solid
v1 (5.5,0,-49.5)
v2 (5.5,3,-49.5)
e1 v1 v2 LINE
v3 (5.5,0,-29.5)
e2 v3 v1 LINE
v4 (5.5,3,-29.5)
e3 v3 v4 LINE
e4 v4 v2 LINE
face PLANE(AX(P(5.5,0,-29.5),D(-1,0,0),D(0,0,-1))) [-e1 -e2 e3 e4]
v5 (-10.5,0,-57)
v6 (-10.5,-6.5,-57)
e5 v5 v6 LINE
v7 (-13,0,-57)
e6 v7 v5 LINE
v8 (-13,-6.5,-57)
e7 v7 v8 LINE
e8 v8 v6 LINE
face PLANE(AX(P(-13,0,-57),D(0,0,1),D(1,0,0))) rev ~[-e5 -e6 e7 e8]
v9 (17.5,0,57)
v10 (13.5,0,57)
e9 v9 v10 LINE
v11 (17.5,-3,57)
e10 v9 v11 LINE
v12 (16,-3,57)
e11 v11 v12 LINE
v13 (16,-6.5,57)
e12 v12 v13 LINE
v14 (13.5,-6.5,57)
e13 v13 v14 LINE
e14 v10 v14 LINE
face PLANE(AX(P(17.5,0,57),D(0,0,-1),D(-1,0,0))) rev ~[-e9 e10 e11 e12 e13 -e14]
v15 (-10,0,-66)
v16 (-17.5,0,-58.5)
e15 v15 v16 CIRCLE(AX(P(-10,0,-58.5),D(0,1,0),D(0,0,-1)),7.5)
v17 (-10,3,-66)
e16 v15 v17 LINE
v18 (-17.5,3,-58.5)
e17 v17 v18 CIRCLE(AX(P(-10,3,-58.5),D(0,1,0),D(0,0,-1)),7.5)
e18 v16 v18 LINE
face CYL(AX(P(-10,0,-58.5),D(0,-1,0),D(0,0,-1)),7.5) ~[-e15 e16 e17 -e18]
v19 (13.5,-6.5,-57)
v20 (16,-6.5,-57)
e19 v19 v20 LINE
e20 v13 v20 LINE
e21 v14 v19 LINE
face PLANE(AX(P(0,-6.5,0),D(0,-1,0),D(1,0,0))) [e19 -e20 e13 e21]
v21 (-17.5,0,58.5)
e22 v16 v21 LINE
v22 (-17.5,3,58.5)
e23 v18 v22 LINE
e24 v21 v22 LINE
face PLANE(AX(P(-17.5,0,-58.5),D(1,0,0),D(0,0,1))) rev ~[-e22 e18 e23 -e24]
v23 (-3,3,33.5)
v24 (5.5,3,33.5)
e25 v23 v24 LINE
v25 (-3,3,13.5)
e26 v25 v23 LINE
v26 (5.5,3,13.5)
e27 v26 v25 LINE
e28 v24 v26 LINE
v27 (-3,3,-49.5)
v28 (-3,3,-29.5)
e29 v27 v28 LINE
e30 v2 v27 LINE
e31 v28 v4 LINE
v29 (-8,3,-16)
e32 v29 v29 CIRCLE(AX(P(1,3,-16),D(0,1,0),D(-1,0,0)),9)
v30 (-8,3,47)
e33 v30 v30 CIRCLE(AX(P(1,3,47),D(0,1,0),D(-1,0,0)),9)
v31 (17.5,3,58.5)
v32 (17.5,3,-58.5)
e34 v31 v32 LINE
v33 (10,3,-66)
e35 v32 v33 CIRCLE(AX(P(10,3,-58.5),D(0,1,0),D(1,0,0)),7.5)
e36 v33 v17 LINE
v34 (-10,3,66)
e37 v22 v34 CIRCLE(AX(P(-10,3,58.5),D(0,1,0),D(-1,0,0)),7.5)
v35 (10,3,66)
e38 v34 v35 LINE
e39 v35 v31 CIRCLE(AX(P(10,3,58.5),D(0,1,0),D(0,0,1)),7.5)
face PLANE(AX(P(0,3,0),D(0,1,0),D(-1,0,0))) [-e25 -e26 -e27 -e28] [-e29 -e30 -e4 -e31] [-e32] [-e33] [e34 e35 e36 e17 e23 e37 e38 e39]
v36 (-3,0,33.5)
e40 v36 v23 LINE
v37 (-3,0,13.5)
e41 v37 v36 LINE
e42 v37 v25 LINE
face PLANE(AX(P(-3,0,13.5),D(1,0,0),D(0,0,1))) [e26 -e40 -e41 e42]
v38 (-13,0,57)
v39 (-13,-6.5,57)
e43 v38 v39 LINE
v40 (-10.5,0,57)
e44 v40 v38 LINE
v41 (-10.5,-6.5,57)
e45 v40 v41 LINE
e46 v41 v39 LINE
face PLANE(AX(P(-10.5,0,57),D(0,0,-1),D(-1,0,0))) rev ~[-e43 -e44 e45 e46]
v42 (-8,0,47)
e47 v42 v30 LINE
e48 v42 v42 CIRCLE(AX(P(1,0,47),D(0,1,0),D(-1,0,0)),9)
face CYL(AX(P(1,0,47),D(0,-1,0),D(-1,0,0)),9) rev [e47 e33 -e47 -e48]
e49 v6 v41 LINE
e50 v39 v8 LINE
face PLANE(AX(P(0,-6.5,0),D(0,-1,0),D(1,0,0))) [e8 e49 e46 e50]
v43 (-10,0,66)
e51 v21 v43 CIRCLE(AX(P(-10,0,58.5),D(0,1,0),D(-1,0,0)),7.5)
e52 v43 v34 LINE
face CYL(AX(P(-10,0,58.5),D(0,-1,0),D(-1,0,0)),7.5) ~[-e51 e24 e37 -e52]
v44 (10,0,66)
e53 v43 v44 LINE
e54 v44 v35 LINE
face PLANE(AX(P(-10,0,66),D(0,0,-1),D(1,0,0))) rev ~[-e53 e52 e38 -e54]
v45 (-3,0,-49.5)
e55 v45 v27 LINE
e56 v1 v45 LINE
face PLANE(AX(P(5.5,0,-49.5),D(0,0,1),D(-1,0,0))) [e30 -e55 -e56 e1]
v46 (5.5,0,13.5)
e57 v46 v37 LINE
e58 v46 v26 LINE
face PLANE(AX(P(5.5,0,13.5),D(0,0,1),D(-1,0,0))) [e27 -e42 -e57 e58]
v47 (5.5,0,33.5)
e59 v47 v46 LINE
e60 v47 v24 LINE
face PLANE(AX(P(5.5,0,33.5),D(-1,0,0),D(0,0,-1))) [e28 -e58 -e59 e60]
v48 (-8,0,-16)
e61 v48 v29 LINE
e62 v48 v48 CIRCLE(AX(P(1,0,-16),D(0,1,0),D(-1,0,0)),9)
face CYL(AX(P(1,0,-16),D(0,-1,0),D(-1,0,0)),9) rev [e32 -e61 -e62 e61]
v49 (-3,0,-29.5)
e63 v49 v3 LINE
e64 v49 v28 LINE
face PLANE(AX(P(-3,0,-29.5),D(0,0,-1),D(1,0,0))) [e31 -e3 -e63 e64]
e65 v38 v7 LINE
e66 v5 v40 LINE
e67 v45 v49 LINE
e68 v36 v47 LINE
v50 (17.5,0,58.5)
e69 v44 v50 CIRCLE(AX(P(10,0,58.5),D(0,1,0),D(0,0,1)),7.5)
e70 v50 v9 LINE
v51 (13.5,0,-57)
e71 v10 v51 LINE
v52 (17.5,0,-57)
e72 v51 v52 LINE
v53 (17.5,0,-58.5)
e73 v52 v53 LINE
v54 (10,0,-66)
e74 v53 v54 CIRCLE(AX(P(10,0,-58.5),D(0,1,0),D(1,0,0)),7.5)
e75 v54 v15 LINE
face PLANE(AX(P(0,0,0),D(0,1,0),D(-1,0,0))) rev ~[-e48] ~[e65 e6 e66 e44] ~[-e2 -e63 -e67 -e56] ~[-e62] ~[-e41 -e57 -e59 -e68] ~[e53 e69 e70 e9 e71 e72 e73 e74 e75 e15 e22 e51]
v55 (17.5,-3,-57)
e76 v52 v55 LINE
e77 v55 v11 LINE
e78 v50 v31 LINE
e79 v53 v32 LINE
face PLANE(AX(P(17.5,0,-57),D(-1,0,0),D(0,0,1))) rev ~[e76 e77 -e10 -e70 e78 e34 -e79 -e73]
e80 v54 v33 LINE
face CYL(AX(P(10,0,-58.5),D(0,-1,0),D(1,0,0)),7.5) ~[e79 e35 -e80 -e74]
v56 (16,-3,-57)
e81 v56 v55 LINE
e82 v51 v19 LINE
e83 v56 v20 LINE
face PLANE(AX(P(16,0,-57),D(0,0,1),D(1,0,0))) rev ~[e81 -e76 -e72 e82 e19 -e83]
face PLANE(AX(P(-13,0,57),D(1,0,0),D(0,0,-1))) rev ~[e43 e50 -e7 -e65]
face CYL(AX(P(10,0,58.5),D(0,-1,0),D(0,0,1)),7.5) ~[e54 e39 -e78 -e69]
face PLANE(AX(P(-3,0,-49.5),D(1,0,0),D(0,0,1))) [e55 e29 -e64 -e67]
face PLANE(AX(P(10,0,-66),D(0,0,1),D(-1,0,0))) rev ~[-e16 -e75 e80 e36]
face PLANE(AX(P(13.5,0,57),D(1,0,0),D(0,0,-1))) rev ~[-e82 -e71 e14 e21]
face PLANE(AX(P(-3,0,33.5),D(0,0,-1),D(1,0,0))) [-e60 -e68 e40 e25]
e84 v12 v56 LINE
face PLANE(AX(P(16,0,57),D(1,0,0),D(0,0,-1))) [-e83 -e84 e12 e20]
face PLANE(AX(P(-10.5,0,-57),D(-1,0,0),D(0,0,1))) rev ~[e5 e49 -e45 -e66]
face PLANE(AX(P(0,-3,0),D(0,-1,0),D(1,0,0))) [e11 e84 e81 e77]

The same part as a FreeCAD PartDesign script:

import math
import FreeCAD as App
import Part
import Sketcher
Q = App.Units.Quantity


def add_polygon(sketch, points):
    """Adds a closed chain of lines whose ends are joined by coincident constraints."""
    first, n = sketch.GeometryCount, len(points)
    for a, b in zip(points, points[1:] + points[:1]):
        sketch.addGeometry(Part.LineSegment(App.Vector(*a, 0), App.Vector(*b, 0)), False)
    for i in range(n):
        sketch.addConstraint(Sketcher.Constraint("Coincident", first + i, 2, first + (i + 1) % n, 1))

doc = App.newDocument("Part")
params = doc.addObject("Spreadsheet::Sheet", "Params")
for row, (alias, value) in enumerate([
    ("sketch1_diameter", "18 mm"),
    ("sketch1_radius", "7.5 mm"),
    ("sketch1_width", "20 mm"),
    ("sketch1_width2", "8.5 mm"),
    ("pad1_length", "3 mm"),
    ("sketch2_height", "114 mm"),
    ("sketch2_width", "2.5 mm"),
    ("pad2_length", "6.5 mm"),
    ("sketch3_height", "114 mm"),
    ("sketch3_width", "1.5 mm"),
    ("pad3_length", "3 mm"),
], start=1):
    params.set(f"A{row}", alias)
    params.set(f"B{row}", "=" + value)
    params.setAlias(f"B{row}", alias)

body = doc.addObject("PartDesign::Body", "Body")

sketch1 = doc.addObject("Sketcher::SketchObject", "Sketch")
body.addObject(sketch1)
sketch1.AttachmentSupport = (doc.XZ_Plane, [""])
sketch1.MapMode = "FlatFace"
sketch1.addGeometry(Part.ArcOfCircle(Part.Circle(App.Vector(-10, 58, 0), App.Vector(0, 0, 1), 8), math.radians(90), math.radians(180)), False)
sketch1.addGeometry(Part.LineSegment(App.Vector(-10, 66, 0), App.Vector(10, 66, 0)), False)
sketch1.addGeometry(Part.ArcOfCircle(Part.Circle(App.Vector(10, 58, 0), App.Vector(0, 0, 1), 8), math.radians(0), math.radians(90)), False)
sketch1.addGeometry(Part.LineSegment(App.Vector(18, 58, 0), App.Vector(18, -58, 0)), False)
sketch1.addGeometry(Part.ArcOfCircle(Part.Circle(App.Vector(10, -58, 0), App.Vector(0, 0, 1), 8), math.radians(-90), math.radians(0)), False)
sketch1.addGeometry(Part.LineSegment(App.Vector(10, -66, 0), App.Vector(-10, -66, 0)), False)
sketch1.addGeometry(Part.ArcOfCircle(Part.Circle(App.Vector(-10, -58, 0), App.Vector(0, 0, 1), 8), math.radians(180), math.radians(270)), False)
sketch1.addGeometry(Part.LineSegment(App.Vector(-18, -58, 0), App.Vector(-18, 58, 0)), False)
add_polygon(sketch1, [(6, -30), (-3, -30), (-3, -50), (6, -50)])
sketch1.addGeometry(Part.Circle(App.Vector(1, -16, 0), App.Vector(0, 0, 1), 9), False)
add_polygon(sketch1, [(6, 34), (-3, 34), (-3, 14), (6, 14)])
sketch1.addGeometry(Part.Circle(App.Vector(1, 47, 0), App.Vector(0, 0, 1), 9), False)
sketch1.addConstraint(Sketcher.Constraint("Tangent", 0, 1, 1, 1))
sketch1.addConstraint(Sketcher.Constraint("Tangent", 1, 2, 2, 2))
sketch1.addConstraint(Sketcher.Constraint("Tangent", 2, 1, 3, 1))
sketch1.addConstraint(Sketcher.Constraint("Tangent", 3, 2, 4, 2))
sketch1.addConstraint(Sketcher.Constraint("Tangent", 4, 1, 5, 1))
sketch1.addConstraint(Sketcher.Constraint("Tangent", 5, 2, 6, 2))
sketch1.addConstraint(Sketcher.Constraint("Tangent", 6, 1, 7, 1))
sketch1.addConstraint(Sketcher.Constraint("Tangent", 7, 2, 0, 2))
sketch1.addConstraint(Sketcher.Constraint("Horizontal", 1))
sketch1.addConstraint(Sketcher.Constraint("Vertical", 3))
sketch1.addConstraint(Sketcher.Constraint("Horizontal", 5))
sketch1.addConstraint(Sketcher.Constraint("Vertical", 7))
sketch1.addConstraint(Sketcher.Constraint("Horizontal", 8))
sketch1.addConstraint(Sketcher.Constraint("Vertical", 9))
sketch1.addConstraint(Sketcher.Constraint("Horizontal", 10))
sketch1.addConstraint(Sketcher.Constraint("Vertical", 11))
sketch1.addConstraint(Sketcher.Constraint("Horizontal", 13))
sketch1.addConstraint(Sketcher.Constraint("Vertical", 14))
sketch1.addConstraint(Sketcher.Constraint("Horizontal", 15))
sketch1.addConstraint(Sketcher.Constraint("Vertical", 16))
sketch1.addConstraint(Sketcher.Constraint("Equal", 0, 2))
sketch1.addConstraint(Sketcher.Constraint("Equal", 2, 4))
sketch1.addConstraint(Sketcher.Constraint("Equal", 4, 6))
sketch1.addConstraint(Sketcher.Constraint("Equal", 12, 17))
sketch1.addConstraint(Sketcher.Constraint("Symmetric", 0, 3, 4, 3, -1, 1))
sketch1.addConstraint(Sketcher.Constraint("Vertical", 12, 3, 17, 3))
sketch1.addConstraint(Sketcher.Constraint("Vertical", 9, 2, 13, 2))
sketch1.addConstraint(Sketcher.Constraint("Vertical", 11, 2, 15, 2))
sketch1.addConstraint(Sketcher.Constraint("Equal", 5, 9))
sketch1.addConstraint(Sketcher.Constraint("Equal", 11, 14))
sketch1.addConstraint(Sketcher.Constraint("Diameter", 12, Q("18 mm")))
sketch1.addConstraint(Sketcher.Constraint("Radius", 0, Q("7.5 mm")))
sketch1.addConstraint(Sketcher.Constraint("DistanceX", 1, 1, 1, 2, Q("20 mm")))
sketch1.addConstraint(Sketcher.Constraint("DistanceX", 8, 2, 8, 1, Q("8.5 mm")))
sketch1.addConstraint(Sketcher.Constraint("DistanceX", 10, 2, 3, 2, Q("12 mm")))
sketch1.addConstraint(Sketcher.Constraint("DistanceY", 8, 2, 14, 2, Q("43 mm")))
sketch1.addConstraint(Sketcher.Constraint("DistanceY", -1, 1, 14, 2, Q("13.5 mm")))
sketch1.addConstraint(Sketcher.Constraint("DistanceX", 17, 3, 2, 1, Q("16.5 mm")))
sketch1.addConstraint(Sketcher.Constraint("DistanceY", 8, 2, 12, 3, Q("13.5 mm")))
sketch1.addConstraint(Sketcher.Constraint("DistanceY", 5, 2, 9, 2, Q("16.5 mm")))
sketch1.addConstraint(Sketcher.Constraint("DistanceY", 13, 2, 17, 3, Q("13.5 mm")))
sketch1.setExpression("Constraints[38]", "Params.sketch1_diameter")
sketch1.setExpression("Constraints[39]", "Params.sketch1_radius")
sketch1.setExpression("Constraints[40]", "Params.sketch1_width")
sketch1.setExpression("Constraints[41]", "Params.sketch1_width2")
pad1 = doc.addObject("PartDesign::Pad", "Pad")
body.addObject(pad1)
pad1.Profile = sketch1
pad1.setExpression("Length", "Params.pad1_length")
pad1.Reversed = True

sketch2 = doc.addObject("Sketcher::SketchObject", "Sketch001")
body.addObject(sketch2)
sketch2.AttachmentSupport = (doc.XZ_Plane, [""])
sketch2.MapMode = "FlatFace"
add_polygon(sketch2, [(16, -57), (16, 57), (13.5, 57), (13.5, -57)])
add_polygon(sketch2, [(-10.5, -57), (-10.5, 57), (-13, 57), (-13, -57)])
sketch2.addConstraint(Sketcher.Constraint("Vertical", 0))
sketch2.addConstraint(Sketcher.Constraint("Horizontal", 1))
sketch2.addConstraint(Sketcher.Constraint("Vertical", 2))
sketch2.addConstraint(Sketcher.Constraint("Horizontal", 3))
sketch2.addConstraint(Sketcher.Constraint("Vertical", 4))
sketch2.addConstraint(Sketcher.Constraint("Horizontal", 5))
sketch2.addConstraint(Sketcher.Constraint("Vertical", 6))
sketch2.addConstraint(Sketcher.Constraint("Horizontal", 7))
sketch2.addConstraint(Sketcher.Constraint("Horizontal", 1, 2, 4, 2))
sketch2.addConstraint(Sketcher.Constraint("Horizontal", 3, 2, 6, 2))
sketch2.addConstraint(Sketcher.Constraint("Equal", 3, 5))
sketch2.addConstraint(Sketcher.Constraint("DistanceY", 0, 1, 0, 2, Q("114 mm")))
sketch2.addConstraint(Sketcher.Constraint("DistanceX", 1, 2, 1, 1, Q("2.5 mm")))
sketch2.addConstraint(Sketcher.Constraint("DistanceX", 4, 2, 1, 2, Q("24 mm")))
sketch2.addConstraint(Sketcher.Constraint("DistanceX", -1, 1, 0, 2, Q("16 mm")))
sketch2.addConstraint(Sketcher.Constraint("DistanceY", -1, 1, 0, 2, Q("57 mm")))
sketch2.setExpression("Constraints[19]", "Params.sketch2_height")
sketch2.setExpression("Constraints[20]", "Params.sketch2_width")
pad2 = doc.addObject("PartDesign::Pad", "Pad001")
body.addObject(pad2)
pad2.Profile = sketch2
pad2.setExpression("Length", "Params.pad2_length")

sketch3 = doc.addObject("Sketcher::SketchObject", "Sketch002")
body.addObject(sketch3)
sketch3.AttachmentSupport = (doc.XZ_Plane, [""])
sketch3.MapMode = "FlatFace"
add_polygon(sketch3, [(17.5, -57), (17.5, 57), (16, 57), (16, -57)])
sketch3.addConstraint(Sketcher.Constraint("Vertical", 0))
sketch3.addConstraint(Sketcher.Constraint("Horizontal", 1))
sketch3.addConstraint(Sketcher.Constraint("Vertical", 2))
sketch3.addConstraint(Sketcher.Constraint("Horizontal", 3))
sketch3.addConstraint(Sketcher.Constraint("DistanceY", 0, 1, 0, 2, Q("114 mm")))
sketch3.addConstraint(Sketcher.Constraint("DistanceX", 1, 2, 1, 1, Q("1.5 mm")))
sketch3.addConstraint(Sketcher.Constraint("DistanceY", -1, 1, 0, 2, Q("57 mm")))
sketch3.addConstraint(Sketcher.Constraint("DistanceX", -1, 1, 1, 2, Q("16 mm")))
sketch3.setExpression("Constraints[8]", "Params.sketch3_height")
sketch3.setExpression("Constraints[9]", "Params.sketch3_width")
pad3 = doc.addObject("PartDesign::Pad", "Pad002")
body.addObject(pad3)
pad3.Profile = sketch3
pad3.setExpression("Length", "Params.pad3_length")

doc.recompute()
